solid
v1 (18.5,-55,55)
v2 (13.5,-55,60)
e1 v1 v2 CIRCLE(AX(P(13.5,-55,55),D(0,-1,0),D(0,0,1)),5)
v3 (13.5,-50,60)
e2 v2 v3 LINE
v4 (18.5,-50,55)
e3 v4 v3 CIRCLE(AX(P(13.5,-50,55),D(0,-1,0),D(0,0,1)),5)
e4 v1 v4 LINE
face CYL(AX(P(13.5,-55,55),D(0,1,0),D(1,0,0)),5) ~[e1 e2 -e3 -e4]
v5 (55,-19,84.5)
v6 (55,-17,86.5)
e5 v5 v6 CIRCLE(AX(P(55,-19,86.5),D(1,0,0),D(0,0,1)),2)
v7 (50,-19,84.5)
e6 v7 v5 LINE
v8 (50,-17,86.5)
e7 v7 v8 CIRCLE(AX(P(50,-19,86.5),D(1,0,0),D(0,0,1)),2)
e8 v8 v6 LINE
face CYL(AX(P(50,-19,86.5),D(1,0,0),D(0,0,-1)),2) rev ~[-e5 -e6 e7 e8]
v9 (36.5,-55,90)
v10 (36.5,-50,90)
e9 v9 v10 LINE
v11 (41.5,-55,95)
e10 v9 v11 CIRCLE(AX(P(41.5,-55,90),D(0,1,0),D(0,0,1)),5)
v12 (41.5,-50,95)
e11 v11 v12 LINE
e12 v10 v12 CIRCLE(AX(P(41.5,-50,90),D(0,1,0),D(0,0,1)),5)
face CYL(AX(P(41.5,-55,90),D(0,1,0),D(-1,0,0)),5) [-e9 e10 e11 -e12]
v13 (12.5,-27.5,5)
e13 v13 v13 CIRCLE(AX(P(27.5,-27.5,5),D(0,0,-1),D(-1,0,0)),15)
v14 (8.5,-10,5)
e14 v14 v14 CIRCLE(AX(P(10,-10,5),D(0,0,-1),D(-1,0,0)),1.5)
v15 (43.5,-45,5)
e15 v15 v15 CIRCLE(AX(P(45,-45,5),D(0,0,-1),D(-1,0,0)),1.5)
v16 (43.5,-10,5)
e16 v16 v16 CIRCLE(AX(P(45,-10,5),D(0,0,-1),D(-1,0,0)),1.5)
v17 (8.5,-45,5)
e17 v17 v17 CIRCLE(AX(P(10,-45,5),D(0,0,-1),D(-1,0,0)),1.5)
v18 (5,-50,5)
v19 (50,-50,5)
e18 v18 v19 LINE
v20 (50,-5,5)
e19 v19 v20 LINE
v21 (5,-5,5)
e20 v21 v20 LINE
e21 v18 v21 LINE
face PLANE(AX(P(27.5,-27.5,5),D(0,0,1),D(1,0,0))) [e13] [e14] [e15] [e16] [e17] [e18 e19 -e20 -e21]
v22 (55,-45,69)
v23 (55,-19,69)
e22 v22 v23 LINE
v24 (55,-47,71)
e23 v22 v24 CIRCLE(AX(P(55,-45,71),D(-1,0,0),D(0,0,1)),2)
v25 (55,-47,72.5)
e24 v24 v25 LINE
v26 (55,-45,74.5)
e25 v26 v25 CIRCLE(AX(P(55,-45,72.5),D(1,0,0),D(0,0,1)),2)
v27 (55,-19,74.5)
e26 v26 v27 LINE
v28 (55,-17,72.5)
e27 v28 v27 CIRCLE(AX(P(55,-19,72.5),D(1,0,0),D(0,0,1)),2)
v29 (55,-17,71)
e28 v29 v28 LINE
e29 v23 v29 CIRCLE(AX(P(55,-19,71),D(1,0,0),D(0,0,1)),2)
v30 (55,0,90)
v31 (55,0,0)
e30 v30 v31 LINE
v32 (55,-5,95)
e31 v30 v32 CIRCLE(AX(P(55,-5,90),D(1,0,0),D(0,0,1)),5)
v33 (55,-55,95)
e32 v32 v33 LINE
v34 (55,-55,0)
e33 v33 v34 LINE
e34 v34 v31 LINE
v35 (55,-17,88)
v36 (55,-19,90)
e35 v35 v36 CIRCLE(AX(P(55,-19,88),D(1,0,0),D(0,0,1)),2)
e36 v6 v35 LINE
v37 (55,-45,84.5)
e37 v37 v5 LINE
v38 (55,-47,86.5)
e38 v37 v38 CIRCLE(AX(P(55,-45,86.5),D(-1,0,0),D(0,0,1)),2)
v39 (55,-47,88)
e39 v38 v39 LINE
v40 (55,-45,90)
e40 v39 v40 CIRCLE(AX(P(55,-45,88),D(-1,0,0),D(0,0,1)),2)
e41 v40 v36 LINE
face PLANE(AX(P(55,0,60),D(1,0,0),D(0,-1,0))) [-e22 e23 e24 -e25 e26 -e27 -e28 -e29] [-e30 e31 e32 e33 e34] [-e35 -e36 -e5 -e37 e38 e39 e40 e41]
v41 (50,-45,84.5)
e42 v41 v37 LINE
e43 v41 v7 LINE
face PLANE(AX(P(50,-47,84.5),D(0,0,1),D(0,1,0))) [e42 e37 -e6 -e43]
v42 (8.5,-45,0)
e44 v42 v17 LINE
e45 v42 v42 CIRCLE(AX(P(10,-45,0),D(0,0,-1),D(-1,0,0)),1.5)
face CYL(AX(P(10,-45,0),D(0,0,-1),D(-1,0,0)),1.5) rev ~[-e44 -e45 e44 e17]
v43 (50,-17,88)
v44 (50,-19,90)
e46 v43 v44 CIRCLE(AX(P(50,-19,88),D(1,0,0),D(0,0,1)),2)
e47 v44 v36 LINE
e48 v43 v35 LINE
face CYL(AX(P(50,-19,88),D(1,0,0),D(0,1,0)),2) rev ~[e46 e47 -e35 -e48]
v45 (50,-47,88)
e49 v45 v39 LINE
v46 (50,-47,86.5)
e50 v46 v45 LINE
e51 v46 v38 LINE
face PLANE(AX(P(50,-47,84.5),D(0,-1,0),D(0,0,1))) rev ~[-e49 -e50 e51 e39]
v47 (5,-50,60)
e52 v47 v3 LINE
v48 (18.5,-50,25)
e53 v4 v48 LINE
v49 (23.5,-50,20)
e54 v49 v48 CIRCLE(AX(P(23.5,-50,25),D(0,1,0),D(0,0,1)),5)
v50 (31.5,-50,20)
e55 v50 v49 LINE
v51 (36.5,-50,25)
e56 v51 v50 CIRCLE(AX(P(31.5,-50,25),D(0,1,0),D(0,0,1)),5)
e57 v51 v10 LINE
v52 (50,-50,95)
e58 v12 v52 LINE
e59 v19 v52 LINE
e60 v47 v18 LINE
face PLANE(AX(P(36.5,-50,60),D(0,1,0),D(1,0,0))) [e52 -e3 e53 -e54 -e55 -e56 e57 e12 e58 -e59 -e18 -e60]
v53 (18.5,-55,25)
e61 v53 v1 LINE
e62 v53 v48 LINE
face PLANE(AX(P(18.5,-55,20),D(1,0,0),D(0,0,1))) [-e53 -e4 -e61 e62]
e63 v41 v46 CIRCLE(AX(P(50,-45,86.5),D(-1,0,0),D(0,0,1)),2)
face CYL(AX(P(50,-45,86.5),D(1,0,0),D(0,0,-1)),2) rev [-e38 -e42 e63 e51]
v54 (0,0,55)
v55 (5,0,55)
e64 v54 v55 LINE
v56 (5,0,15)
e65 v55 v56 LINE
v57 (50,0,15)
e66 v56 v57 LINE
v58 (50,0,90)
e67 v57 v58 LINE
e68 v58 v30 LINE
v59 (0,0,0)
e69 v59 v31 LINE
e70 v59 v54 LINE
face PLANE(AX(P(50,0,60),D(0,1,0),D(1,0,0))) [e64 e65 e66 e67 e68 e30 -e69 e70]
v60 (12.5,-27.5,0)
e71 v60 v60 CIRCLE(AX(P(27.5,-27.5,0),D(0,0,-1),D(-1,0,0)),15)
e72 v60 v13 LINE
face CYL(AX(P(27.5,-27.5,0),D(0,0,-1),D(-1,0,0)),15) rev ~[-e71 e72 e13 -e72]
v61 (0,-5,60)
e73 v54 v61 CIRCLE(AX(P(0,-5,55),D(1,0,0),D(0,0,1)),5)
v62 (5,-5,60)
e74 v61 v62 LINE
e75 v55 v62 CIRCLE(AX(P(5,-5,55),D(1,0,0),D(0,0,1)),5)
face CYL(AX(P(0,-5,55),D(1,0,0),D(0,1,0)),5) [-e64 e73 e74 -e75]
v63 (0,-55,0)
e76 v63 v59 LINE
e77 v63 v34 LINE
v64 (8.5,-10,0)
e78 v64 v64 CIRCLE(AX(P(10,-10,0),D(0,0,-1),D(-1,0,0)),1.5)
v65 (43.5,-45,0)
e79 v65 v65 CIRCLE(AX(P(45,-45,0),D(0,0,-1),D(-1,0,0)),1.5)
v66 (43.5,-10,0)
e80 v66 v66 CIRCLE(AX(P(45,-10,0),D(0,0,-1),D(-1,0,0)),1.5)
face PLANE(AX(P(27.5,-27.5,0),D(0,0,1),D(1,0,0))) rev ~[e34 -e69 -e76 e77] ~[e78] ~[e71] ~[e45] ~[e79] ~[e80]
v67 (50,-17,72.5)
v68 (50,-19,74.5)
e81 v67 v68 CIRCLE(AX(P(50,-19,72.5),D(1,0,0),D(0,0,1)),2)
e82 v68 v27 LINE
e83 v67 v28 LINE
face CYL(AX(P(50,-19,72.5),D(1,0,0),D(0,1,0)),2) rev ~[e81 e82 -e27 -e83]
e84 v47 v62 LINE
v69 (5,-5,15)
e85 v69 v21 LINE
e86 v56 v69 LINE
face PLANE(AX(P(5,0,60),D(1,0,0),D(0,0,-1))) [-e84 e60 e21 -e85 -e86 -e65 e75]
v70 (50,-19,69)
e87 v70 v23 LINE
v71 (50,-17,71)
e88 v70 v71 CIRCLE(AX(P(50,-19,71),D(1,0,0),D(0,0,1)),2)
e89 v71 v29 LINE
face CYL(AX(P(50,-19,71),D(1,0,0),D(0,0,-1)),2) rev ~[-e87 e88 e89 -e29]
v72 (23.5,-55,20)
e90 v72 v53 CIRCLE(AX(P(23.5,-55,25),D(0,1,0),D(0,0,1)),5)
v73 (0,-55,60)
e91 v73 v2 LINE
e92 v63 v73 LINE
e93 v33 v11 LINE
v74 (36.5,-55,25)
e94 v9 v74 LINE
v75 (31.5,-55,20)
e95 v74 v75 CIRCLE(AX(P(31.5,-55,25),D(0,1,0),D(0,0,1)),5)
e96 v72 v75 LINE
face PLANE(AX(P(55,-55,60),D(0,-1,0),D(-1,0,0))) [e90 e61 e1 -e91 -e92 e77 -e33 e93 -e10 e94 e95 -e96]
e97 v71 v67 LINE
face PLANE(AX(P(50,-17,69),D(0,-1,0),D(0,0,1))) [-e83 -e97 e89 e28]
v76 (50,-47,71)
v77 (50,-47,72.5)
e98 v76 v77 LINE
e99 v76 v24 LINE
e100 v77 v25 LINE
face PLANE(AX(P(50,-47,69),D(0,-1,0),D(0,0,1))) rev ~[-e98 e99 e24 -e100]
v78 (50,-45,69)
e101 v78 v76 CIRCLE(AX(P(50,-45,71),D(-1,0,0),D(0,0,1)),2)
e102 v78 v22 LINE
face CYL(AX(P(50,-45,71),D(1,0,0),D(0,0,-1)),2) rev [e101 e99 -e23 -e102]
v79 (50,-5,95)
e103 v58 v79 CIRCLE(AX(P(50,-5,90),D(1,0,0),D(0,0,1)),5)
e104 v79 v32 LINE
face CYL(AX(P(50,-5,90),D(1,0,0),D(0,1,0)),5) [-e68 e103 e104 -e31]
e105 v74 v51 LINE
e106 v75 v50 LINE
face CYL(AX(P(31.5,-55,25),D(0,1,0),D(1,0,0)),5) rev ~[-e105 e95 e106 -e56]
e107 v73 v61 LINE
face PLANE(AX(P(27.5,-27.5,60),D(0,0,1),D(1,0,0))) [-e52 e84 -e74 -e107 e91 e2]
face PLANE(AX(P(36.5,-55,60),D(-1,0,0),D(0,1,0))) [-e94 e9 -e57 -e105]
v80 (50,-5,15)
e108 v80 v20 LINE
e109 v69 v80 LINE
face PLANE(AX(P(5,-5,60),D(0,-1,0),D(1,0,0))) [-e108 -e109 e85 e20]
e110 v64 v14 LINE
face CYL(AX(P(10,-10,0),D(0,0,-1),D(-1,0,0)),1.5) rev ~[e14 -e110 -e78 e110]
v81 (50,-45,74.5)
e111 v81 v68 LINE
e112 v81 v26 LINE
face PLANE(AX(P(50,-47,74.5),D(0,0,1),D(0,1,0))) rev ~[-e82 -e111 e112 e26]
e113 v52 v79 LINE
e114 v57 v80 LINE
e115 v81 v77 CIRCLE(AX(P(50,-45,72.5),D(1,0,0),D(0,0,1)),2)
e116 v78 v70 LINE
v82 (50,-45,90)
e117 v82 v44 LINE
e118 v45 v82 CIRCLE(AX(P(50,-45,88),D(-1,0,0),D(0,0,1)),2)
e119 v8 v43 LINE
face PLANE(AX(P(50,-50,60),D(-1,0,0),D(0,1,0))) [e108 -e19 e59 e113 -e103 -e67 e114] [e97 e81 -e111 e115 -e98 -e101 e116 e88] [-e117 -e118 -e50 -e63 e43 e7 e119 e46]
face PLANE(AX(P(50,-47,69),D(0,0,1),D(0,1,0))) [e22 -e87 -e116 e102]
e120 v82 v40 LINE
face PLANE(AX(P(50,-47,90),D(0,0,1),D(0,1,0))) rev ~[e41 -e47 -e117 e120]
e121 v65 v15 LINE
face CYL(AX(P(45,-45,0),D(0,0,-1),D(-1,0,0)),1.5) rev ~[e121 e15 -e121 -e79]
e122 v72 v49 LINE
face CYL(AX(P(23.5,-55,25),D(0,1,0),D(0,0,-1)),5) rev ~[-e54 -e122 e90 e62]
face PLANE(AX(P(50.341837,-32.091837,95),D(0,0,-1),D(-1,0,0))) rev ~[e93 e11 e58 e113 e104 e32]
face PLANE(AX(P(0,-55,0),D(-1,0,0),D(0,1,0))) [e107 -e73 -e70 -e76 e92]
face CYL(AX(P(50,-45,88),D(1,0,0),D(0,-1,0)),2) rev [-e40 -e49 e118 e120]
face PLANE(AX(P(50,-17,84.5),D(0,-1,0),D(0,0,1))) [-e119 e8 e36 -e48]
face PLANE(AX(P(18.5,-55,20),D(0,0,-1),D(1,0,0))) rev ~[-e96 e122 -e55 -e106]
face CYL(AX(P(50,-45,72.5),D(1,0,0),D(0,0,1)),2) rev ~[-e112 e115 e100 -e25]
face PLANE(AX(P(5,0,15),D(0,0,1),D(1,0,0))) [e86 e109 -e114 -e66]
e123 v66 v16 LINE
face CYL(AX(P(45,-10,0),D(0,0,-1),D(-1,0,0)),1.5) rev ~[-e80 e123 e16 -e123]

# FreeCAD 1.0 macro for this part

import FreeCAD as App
import Part
import Sketcher

V = App.Vector


def edges_at(feature, points):
    """Names of the edges that pass closest to the given points."""
    edges = feature.Shape.Edges
    near = lambda p: min(range(len(edges)), key=lambda i: edges[i].distToShape(Part.Vertex(*p))[0])
    return sorted({f"Edge{near(p) + 1}" for p in points})


def add_polygon(sketch, points):
    """Adds a closed chain of lines whose ends are joined by coincident constraints."""
    first, n = sketch.GeometryCount, len(points)
    for a, b in zip(points, points[1:] + points[:1]):
        sketch.addGeometry(Part.LineSegment(App.Vector(*a, 0), App.Vector(*b, 0)), False)
    for i in range(n):
        sketch.addConstraint(Sketcher.Constraint("Coincident", first + i, 2, first + (i + 1) % n, 1))

doc = App.newDocument("Part")
body = doc.addObject("PartDesign::Body", "Body")

sketch1 = body.newObject("Sketcher::SketchObject", "Sketch")
sketch1.AttachmentSupport = (doc.getObject("XY_Plane"), [""])
sketch1.MapMode = "FlatFace"
add_polygon(sketch1, [(0, 0), (0, -55), (55, -55), (55, 0)])
sketch1.addConstraint([
    Sketcher.Constraint("Vertical", 0),
    Sketcher.Constraint("Horizontal", 1),
    Sketcher.Constraint("Vertical", 2),
    Sketcher.Constraint("Horizontal", 3),
    Sketcher.Constraint("Coincident", 3, 2, -1, 1),
    Sketcher.Constraint("Equal", 3, 0),
    Sketcher.Constraint("DistanceX", 1, 1, 1, 2, 55.0),
])
pad1 = body.newObject("PartDesign::Pad", "Pad")
pad1.Profile = sketch1
pad1.Length = 60

sketch2 = body.newObject("Sketcher::SketchObject", "Sketch001")
sketch2.AttachmentSupport = (doc.getObject("XY_Plane"), [""])
sketch2.MapMode = "FlatFace"
sketch2.AttachmentOffset = App.Placement(V(0, 0, 60), App.Rotation())
add_polygon(sketch2, [(5, -5), (5, -50), (50, -50), (50, -5)])
sketch2.addConstraint([
    Sketcher.Constraint("Vertical", 0),
    Sketcher.Constraint("Horizontal", 1),
    Sketcher.Constraint("Vertical", 2),
    Sketcher.Constraint("Horizontal", 3),
    Sketcher.Constraint("Equal", 3, 0),
    Sketcher.Constraint("DistanceX", 1, 1, 1, 2, 45.0),
    Sketcher.Constraint("DistanceX", -1, 1, 0, 2, 5.0),
    Sketcher.Constraint("DistanceY", 0, 2, -1, 1, 50.0),
])
pocket1 = body.newObject("PartDesign::Pocket", "Pocket")
pocket1.Profile = sketch2
pocket1.Length = 55

sketch3 = body.newObject("Sketcher::SketchObject", "Sketch002")
sketch3.AttachmentSupport = (doc.getObject("XZ_Plane"), [""])
sketch3.MapMode = "FlatFace"
sketch3.AttachmentOffset = App.Placement(V(0, 0, 55), App.Rotation())
add_polygon(sketch3, [(18, 60), (18, 20), (36, 20), (36, 60)])
sketch3.addConstraint([
    Sketcher.Constraint("Vertical", 0),
    Sketcher.Constraint("Horizontal", 1),
    Sketcher.Constraint("Vertical", 2),
    Sketcher.Constraint("Horizontal", 3),
    Sketcher.Constraint("DistanceX", 1, 1, 1, 2, 18.0),
    Sketcher.Constraint("DistanceY", 0, 2, 0, 1, 40.0),
    Sketcher.Constraint("DistanceY", -1, 1, 0, 2, 20.0),
    Sketcher.Constraint("DistanceX", -1, 1, 0, 2, 18.5),
])
pocket2 = body.newObject("PartDesign::Pocket", "Pocket001")
pocket2.Profile = sketch3
pocket2.Type = "UpToFirst"

sketch4 = body.newObject("Sketcher::SketchObject", "Sketch003")
sketch4.AttachmentSupport = (doc.getObject("XZ_Plane"), [""])
sketch4.MapMode = "FlatFace"
add_polygon(sketch4, [(5, 15), (5, 60), (50, 60), (50, 15)])
sketch4.addConstraint([
    Sketcher.Constraint("Vertical", 0),
    Sketcher.Constraint("Horizontal", 1),
    Sketcher.Constraint("Vertical", 2),
    Sketcher.Constraint("Horizontal", 3),
    Sketcher.Constraint("Equal", 3, 0),
    Sketcher.Constraint("DistanceX", 1, 1, 1, 2, 45.0),
    Sketcher.Constraint("DistanceX", -1, 1, 0, 2, 5.0),
    Sketcher.Constraint("DistanceY", -1, 1, 0, 2, 60.0),
])
pocket3 = body.newObject("PartDesign::Pocket", "Pocket002")
pocket3.Profile = sketch4
pocket3.Type = "UpToFirst"
pocket3.Reversed = True

sketch5 = body.newObject("Sketcher::SketchObject", "Sketch004")
sketch5.AttachmentSupport = (doc.getObject("XY_Plane"), [""])
sketch5.MapMode = "FlatFace"
sketch5.addGeometry(Part.Circle(V(45, -10, 0), V(0, 0, 1), 1.5), False)
sketch5.addConstraint([
    Sketcher.Constraint("Diameter", 0, 3.0),
    Sketcher.Constraint("DistanceX", -1, 1, 0, 3, 45.0),
    Sketcher.Constraint("DistanceY", 0, 3, -1, 1, 10.0),
])
pocket4 = body.newObject("PartDesign::Pocket", "Pocket003")
pocket4.Profile = sketch5
pocket4.Type = "UpToFirst"
pocket4.Reversed = True

sketch6 = body.newObject("Sketcher::SketchObject", "Sketch005")
sketch6.AttachmentSupport = (doc.getObject("XY_Plane"), [""])
sketch6.MapMode = "FlatFace"
sketch6.addGeometry(Part.Circle(V(10, -10, 0), V(0, 0, 1), 1.5), False)
sketch6.addConstraint([
    Sketcher.Constraint("Diameter", 0, 3.0),
    Sketcher.Constraint("DistanceX", -1, 1, 0, 3, 10.0),
    Sketcher.Constraint("DistanceY", 0, 3, -1, 1, 10.0),
])
pocket5 = body.newObject("PartDesign::Pocket", "Pocket004")
pocket5.Profile = sketch6
pocket5.Type = "UpToFirst"
pocket5.Reversed = True

sketch7 = body.newObject("Sketcher::SketchObject", "Sketch006")
sketch7.AttachmentSupport = (doc.getObject("XY_Plane"), [""])
sketch7.MapMode = "FlatFace"
sketch7.addGeometry(Part.Circle(V(45, -45, 0), V(0, 0, 1), 1.5), False)
sketch7.addConstraint([
    Sketcher.Constraint("Diameter", 0, 3.0),
    Sketcher.Constraint("DistanceX", -1, 1, 0, 3, 45.0),
    Sketcher.Constraint("DistanceY", 0, 3, -1, 1, 45.0),
])
pocket6 = body.newObject("PartDesign::Pocket", "Pocket005")
pocket6.Profile = sketch7
pocket6.Type = "UpToFirst"
pocket6.Reversed = True

sketch8 = body.newObject("Sketcher::SketchObject", "Sketch007")
sketch8.AttachmentSupport = (doc.getObject("XY_Plane"), [""])
sketch8.MapMode = "FlatFace"
sketch8.addGeometry(Part.Circle(V(10, -45, 0), V(0, 0, 1), 1.5), False)
sketch8.addConstraint([
    Sketcher.Constraint("Diameter", 0, 3.0),
    Sketcher.Constraint("DistanceX", -1, 1, 0, 3, 10.0),
    Sketcher.Constraint("DistanceY", 0, 3, -1, 1, 45.0),
])
pocket7 = body.newObject("PartDesign::Pocket", "Pocket006")
pocket7.Profile = sketch8
pocket7.Type = "UpToFirst"
pocket7.Reversed = True

sketch9 = body.newObject("Sketcher::SketchObject", "Sketch008")
sketch9.AttachmentSupport = (doc.getObject("XY_Plane"), [""])
sketch9.MapMode = "FlatFace"
sketch9.addGeometry(Part.Circle(V(28, -28, 0), V(0, 0, 1), 15), False)
sketch9.addConstraint([
    Sketcher.Constraint("Diameter", 0, 30.0),
    Sketcher.Constraint("DistanceX", -1, 1, 0, 3, 27.5),
    Sketcher.Constraint("DistanceY", 0, 3, -1, 1, 27.5),
])
pocket8 = body.newObject("PartDesign::Pocket", "Pocket007")
pocket8.Profile = sketch9
pocket8.Type = "UpToFirst"
pocket8.Reversed = True

sketch10 = body.newObject("Sketcher::SketchObject", "Sketch009")
sketch10.AttachmentSupport = (doc.getObject("XY_Plane"), [""])
sketch10.MapMode = "FlatFace"
sketch10.AttachmentOffset = App.Placement(V(0, 0, 60), App.Rotation())
add_polygon(sketch10, [(55, 0), (50, 0), (50, -50), (36, -50), (36, -55), (55, -55)])
sketch10.addConstraint([
    Sketcher.Constraint("Horizontal", 0),
    Sketcher.Constraint("Vertical", 1),
    Sketcher.Constraint("Horizontal", 2),
    Sketcher.Constraint("Vertical", 3),
    Sketcher.Constraint("Horizontal", 4),
    Sketcher.Constraint("Vertical", 5),
    Sketcher.Constraint("PointOnObject", 0, 2, -1),
    Sketcher.Constraint("Equal", 0, 3),
    Sketcher.Constraint("DistanceX", 0, 2, 0, 1, 5.0),
    Sketcher.Constraint("DistanceY", 1, 2, 1, 1, 50.0),
    Sketcher.Constraint("DistanceX", 2, 2, 2, 1, 13.5),
    Sketcher.Constraint("DistanceX", -1, 1, 0, 2, 50.0),
])
pad2 = body.newObject("PartDesign::Pad", "Pad001")
pad2.Profile = sketch10
pad2.Length = 35
doc.recompute()

fillet = body.newObject("PartDesign::Fillet", "Fillet")
fillet.Base = (pad2, edges_at(pad2, [
    (36.5, -52.5, 20),
    (18.5, -52.5, 60),
    (18.5, -52.5, 20),
    (2.5, 0, 60),
    (36.5, -52.5, 95),
    (52.5, 0, 95),
]))
fillet.Radius = 5

sketch11 = body.newObject("Sketcher::SketchObject", "Sketch010")
sketch11.AttachmentSupport = (doc.getObject("YZ_Plane"), [""])
sketch11.MapMode = "FlatFace"
sketch11.AttachmentOffset = App.Placement(V(0, 0, 50), App.Rotation())
add_polygon(sketch11, [(-17, 84), (-47, 84), (-47, 90), (-17, 90)])
sketch11.addConstraint([
    Sketcher.Constraint("Horizontal", 0),
    Sketcher.Constraint("Vertical", 1),
    Sketcher.Constraint("Horizontal", 2),
    Sketcher.Constraint("Vertical", 3),
    Sketcher.Constraint("DistanceX", 0, 2, 0, 1, 30.0),
    Sketcher.Constraint("DistanceY", 1, 1, 1, 2, 5.5),
    Sketcher.Constraint("DistanceX", 0, 2, -1, 1, 47.0),
    Sketcher.Constraint("DistanceY", -1, 1, 1, 2, 90.0),
])
pocket9 = body.newObject("PartDesign::Pocket", "Pocket008")
pocket9.Profile = sketch11
pocket9.Type = "UpToFirst"
pocket9.Reversed = True

sketch12 = body.newObject("Sketcher::SketchObject", "Sketch011")
sketch12.AttachmentSupport = (doc.getObject("YZ_Plane"), [""])
sketch12.MapMode = "FlatFace"
sketch12.AttachmentOffset = App.Placement(V(0, 0, 50), App.Rotation())
add_polygon(sketch12, [(-17, 69), (-47, 69), (-47, 74), (-17, 74)])
sketch12.addConstraint([
    Sketcher.Constraint("Horizontal", 0),
    Sketcher.Constraint("Vertical", 1),
    Sketcher.Constraint("Horizontal", 2),
    Sketcher.Constraint("Vertical", 3),
    Sketcher.Constraint("DistanceX", 0, 2, 0, 1, 30.0),
    Sketcher.Constraint("DistanceY", 1, 1, 1, 2, 5.5),
    Sketcher.Constraint("DistanceX", 0, 2, -1, 1, 47.0),
    Sketcher.Constraint("DistanceY", -1, 1, 0, 2, 69.0),
])
pocket10 = body.newObject("PartDesign::Pocket", "Pocket009")
pocket10.Profile = sketch12
pocket10.Type = "UpToFirst"
pocket10.Reversed = True
doc.recompute()

fillet2 = body.newObject("PartDesign::Fillet", "Fillet001")
fillet2.Base = (pocket10, edges_at(pocket10, [
    (52.5, -47, 84.5),
    (52.5, -17, 84.5),
    (52.5, -17, 90),
    (52.5, -47, 90),
    (52.5, -47, 69),
    (52.5, -17, 69),
    (52.5, -17, 74.5),
    (52.5, -47, 74.5),
]))
fillet2.Radius = 2

doc.recompute()
